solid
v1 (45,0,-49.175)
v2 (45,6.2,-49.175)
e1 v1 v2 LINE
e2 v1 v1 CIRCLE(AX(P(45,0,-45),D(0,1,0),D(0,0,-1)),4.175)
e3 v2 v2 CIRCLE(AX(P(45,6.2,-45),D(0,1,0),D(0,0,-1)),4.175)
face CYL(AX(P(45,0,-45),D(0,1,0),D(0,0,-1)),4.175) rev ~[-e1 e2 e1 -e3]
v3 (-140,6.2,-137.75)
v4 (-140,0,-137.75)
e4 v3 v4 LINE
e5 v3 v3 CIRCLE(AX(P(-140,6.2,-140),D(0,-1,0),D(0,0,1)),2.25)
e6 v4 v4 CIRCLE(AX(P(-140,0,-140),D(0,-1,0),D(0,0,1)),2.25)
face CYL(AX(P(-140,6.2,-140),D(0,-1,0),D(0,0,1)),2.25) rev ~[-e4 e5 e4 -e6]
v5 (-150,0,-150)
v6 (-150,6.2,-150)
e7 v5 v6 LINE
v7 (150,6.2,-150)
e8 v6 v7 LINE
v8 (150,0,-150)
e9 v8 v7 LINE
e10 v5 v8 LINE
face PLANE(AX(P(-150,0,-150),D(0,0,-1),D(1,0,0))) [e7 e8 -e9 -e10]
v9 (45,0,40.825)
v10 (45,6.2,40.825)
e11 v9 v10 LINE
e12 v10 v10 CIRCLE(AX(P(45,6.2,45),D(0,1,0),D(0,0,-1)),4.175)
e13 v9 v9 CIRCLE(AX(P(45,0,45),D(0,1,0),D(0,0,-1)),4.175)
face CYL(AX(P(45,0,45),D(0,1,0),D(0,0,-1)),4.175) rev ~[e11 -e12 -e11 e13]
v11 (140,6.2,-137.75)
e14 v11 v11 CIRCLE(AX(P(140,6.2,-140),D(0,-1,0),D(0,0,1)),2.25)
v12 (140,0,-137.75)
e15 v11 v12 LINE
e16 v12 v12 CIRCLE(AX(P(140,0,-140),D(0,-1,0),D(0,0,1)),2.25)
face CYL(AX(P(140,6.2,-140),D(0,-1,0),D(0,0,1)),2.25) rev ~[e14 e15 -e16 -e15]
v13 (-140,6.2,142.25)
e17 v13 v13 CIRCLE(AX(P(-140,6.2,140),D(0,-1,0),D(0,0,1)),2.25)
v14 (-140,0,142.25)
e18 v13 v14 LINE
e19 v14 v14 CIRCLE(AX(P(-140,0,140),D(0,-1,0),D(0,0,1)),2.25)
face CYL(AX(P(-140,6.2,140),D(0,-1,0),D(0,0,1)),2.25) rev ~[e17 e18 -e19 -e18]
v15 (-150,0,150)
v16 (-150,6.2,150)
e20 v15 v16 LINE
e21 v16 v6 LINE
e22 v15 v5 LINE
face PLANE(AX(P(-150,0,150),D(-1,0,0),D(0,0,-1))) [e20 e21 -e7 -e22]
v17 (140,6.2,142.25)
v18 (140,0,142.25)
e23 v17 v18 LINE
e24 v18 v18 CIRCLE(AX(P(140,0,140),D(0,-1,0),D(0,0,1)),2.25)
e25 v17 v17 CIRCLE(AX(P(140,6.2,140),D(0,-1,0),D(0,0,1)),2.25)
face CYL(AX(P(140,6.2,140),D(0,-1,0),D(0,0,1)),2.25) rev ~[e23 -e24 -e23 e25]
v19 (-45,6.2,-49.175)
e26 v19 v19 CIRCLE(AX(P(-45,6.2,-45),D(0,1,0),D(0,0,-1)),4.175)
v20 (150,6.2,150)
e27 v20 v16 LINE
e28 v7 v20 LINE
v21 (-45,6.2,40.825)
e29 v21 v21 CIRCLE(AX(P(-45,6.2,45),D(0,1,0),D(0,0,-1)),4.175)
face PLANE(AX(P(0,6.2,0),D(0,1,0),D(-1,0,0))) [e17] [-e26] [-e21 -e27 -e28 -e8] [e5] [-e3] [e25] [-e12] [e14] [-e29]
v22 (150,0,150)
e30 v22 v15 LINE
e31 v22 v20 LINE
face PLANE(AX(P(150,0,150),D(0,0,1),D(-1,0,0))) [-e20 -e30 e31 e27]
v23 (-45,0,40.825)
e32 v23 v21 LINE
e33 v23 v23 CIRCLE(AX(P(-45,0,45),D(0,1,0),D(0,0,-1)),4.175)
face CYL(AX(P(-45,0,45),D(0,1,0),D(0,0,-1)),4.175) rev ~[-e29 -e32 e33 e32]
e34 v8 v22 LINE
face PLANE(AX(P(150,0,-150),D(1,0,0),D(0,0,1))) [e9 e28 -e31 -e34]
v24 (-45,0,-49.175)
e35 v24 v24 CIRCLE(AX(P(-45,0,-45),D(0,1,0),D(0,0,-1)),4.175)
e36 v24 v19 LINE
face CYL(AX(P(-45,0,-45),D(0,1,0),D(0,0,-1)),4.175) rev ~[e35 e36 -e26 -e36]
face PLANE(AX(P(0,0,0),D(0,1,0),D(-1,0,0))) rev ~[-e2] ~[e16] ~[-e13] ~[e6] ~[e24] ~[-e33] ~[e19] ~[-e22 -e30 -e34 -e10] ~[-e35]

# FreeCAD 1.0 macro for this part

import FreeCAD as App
import Part
import Sketcher


def add_polygon(sketch, points):
    """Adds a closed chain of lines whose ends are joined by coincident constraints."""
    first, n = sketch.GeometryCount, len(points)
    for a, b in zip(points, points[1:] + points[:1]):
        sketch.addGeometry(Part.LineSegment(App.Vector(*a, 0), App.Vector(*b, 0)), False)
    for i in range(n):
        sketch.addConstraint(Sketcher.Constraint("Coincident", first + i, 2, first + (i + 1) % n, 1))

doc = App.newDocument("Part")
body = doc.addObject("PartDesign::Body", "Body")

sketch1 = body.newObject("Sketcher::SketchObject", "Sketch")
sketch1.AttachmentSupport = (doc.getObject("XZ_Plane"), [""])
sketch1.MapMode = "FlatFace"
add_polygon(sketch1, [(150, -150), (-150, -150), (-150, 150), (150, 150)])
sketch1.addConstraint([
    Sketcher.Constraint("Horizontal", 0),
    Sketcher.Constraint("Vertical", 1),
    Sketcher.Constraint("Horizontal", 2),
    Sketcher.Constraint("Vertical", 3),
    Sketcher.Constraint("Symmetric", 0, 2, 2, 2, -1, 1),
    Sketcher.Constraint("Equal", 2, 1),
    Sketcher.Constraint("DistanceX", 0, 2, 0, 1, 300.0),
])
pad1 = body.newObject("PartDesign::Pad", "Pad")
pad1.Profile = sketch1
pad1.Length = 6.2
pad1.Reversed = True

sketch2 = body.newObject("Sketcher::SketchObject", "Sketch001")
sketch2.AttachmentSupport = (doc.getObject("XZ_Plane"), [""])
sketch2.MapMode = "FlatFace"
sketch2.addGeometry([
    Part.Circle(App.Vector(-45, 45, 0), App.Vector(0, 0, 1), 4.2),
    Part.Circle(App.Vector(45, 45, 0), App.Vector(0, 0, 1), 4.2),
    Part.Circle(App.Vector(45, -45, 0), App.Vector(0, 0, 1), 4.2),
    Part.Circle(App.Vector(-45, -45, 0), App.Vector(0, 0, 1), 4.2),
], False)
sketch2.addConstraint([
    Sketcher.Constraint("Equal", 0, 1),
    Sketcher.Constraint("Equal", 1, 2),
    Sketcher.Constraint("Equal", 2, 3),
    Sketcher.Constraint("Symmetric", 0, 3, 2, 3, -1, 1),
    Sketcher.Constraint("Symmetric", 1, 3, 3, 3, -1, 1),
    Sketcher.Constraint("Symmetric", 0, 3, 1, 3, -2),
    Sketcher.Constraint("Diameter", 0, 8.35),
    Sketcher.Constraint("DistanceX", 0, 3, -1, 1, 45.0),
    Sketcher.Constraint("DistanceY", -1, 1, 0, 3, 45.0),
])
doc.recompute()
hole = body.newObject("PartDesign::Hole", "Hole")
hole.Profile = sketch2
hole.ThreadType = "None"
hole.Diameter = 8.35
hole.DepthType = "ThroughAll"

sketch3 = body.newObject("Sketcher::SketchObject", "Sketch002")
sketch3.AttachmentSupport = (doc.getObject("XZ_Plane"), [""])
sketch3.MapMode = "FlatFace"
sketch3.AttachmentOffset = App.Placement(App.Vector(0, 0, -6.2), App.Rotation())
sketch3.addGeometry([
    Part.Circle(App.Vector(140, 140, 0), App.Vector(0, 0, 1), 2.2),
    Part.Circle(App.Vector(140, -140, 0), App.Vector(0, 0, 1), 2.2),
    Part.Circle(App.Vector(-140, -140, 0), App.Vector(0, 0, 1), 2.2),
    Part.Circle(App.Vector(-140, 140, 0), App.Vector(0, 0, 1), 2.2),
], False)
sketch3.addConstraint([
    Sketcher.Constraint("Equal", 0, 1),
    Sketcher.Constraint("Equal", 1, 2),
    Sketcher.Constraint("Equal", 2, 3),
    Sketcher.Constraint("Symmetric", 0, 3, 2, 3, -1, 1),
    Sketcher.Constraint("Symmetric", 1, 3, 3, 3, -1, 1),
    Sketcher.Constraint("Symmetric", 1, 3, 2, 3, -2),
    Sketcher.Constraint("Diameter", 0, 4.5),
    Sketcher.Constraint("DistanceX", -1, 1, 0, 3, 140.0),
    Sketcher.Constraint("DistanceY", -1, 1, 0, 3, 140.0),
])
doc.recompute()
hole2 = body.newObject("PartDesign::Hole", "Hole001")
hole2.Profile = sketch3
hole2.ThreadType = "None"
hole2.Diameter = 4.5
hole2.DepthType = "ThroughAll"
hole2.Reversed = True

doc.recompute()
